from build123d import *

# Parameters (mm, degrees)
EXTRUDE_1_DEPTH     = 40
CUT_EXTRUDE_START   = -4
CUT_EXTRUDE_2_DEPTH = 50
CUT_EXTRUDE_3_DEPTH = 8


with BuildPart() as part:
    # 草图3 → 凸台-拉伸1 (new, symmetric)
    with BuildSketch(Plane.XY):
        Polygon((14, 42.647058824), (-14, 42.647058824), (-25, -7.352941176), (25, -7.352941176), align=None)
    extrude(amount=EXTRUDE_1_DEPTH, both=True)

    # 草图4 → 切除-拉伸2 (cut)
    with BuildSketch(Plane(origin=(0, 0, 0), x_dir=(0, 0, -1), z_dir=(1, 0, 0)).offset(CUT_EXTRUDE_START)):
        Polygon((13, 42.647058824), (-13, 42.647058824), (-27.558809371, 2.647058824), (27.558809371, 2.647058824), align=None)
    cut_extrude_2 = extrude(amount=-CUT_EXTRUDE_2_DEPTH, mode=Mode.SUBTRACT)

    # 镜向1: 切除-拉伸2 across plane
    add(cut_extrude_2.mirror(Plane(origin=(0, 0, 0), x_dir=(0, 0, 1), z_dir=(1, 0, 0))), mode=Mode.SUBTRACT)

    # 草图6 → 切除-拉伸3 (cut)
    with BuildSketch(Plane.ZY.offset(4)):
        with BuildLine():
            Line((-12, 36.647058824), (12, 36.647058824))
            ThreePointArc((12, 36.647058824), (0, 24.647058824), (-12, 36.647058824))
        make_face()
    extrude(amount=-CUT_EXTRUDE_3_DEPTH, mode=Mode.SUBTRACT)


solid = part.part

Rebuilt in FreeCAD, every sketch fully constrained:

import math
import FreeCAD as App
import Part
import Sketcher

V = App.Vector
Q = App.Units.Quantity


def add_polygon(sketch, points):
    """Adds a closed chain of lines whose ends are joined by coincident constraints."""
    first, n = sketch.GeometryCount, len(points)
    for a, b in zip(points, points[1:] + points[:1]):
        sketch.addGeometry(Part.LineSegment(App.Vector(*a, 0), App.Vector(*b, 0)), False)
    for i in range(n):
        sketch.addConstraint(Sketcher.Constraint("Coincident", first + i, 2, first + (i + 1) % n, 1))

doc = App.newDocument("Part")
body = doc.addObject("PartDesign::Body", "Body")

# Sketch on XY plane
sketch1 = body.newObject("Sketcher::SketchObject", "Sketch")
sketch1.AttachmentSupport = (doc.getObject("XY_Plane"), [""])
sketch1.MapMode = "FlatFace"
add_polygon(sketch1, [(14, 42.647059), (-14, 42.647059), (-25, -7.352941), (25, -7.352941)])  # lines 0-3
sketch1.addConstraint([
    Sketcher.Constraint("Horizontal", 0),
    Sketcher.Constraint("Horizontal", 2),
    Sketcher.Constraint("Equal", 1, 3),
    Sketcher.Constraint("DistanceX", 0, 2, 0, 1, 28.0),
    Sketcher.Constraint("DistanceX", 2, 1, 2, 2, 50.0),
    Sketcher.Constraint("DistanceX", 0, 2, -1, 1, 14.0),
    Sketcher.Constraint("DistanceY", 1, 2, 0, 2, 50.0),
    Sketcher.Constraint("DistanceY", -1, 1, 0, 2, 42.647059),
])
pad1 = body.newObject("PartDesign::Pad", "Pad")
pad1.Profile = sketch1
pad1.Length = 80
pad1.Midplane = True

# Sketch on YZ plane
sketch2 = body.newObject("Sketcher::SketchObject", "Sketch001")
sketch2.AttachmentSupport = (doc.getObject("YZ_Plane"), [""])
sketch2.MapMode = "FlatFace"
sketch2.AttachmentOffset = App.Placement(V(0, 0, -4), App.Rotation())
add_polygon(sketch2, [(42.647059, -13), (42.647059, 13), (2.647059, 27.558809), (2.647059, -27.558809)])  # lines 0-3
sketch2.addConstraint([
    Sketcher.Constraint("Vertical", 0),
    Sketcher.Constraint("Vertical", 2),
    Sketcher.Constraint("Equal", 1, 3),
    Sketcher.Constraint("DistanceY", 0, 1, 0, 2, 26.0),
    Sketcher.Constraint("Angle", 1, Q("160 deg")),
    Sketcher.Constraint("DistanceY", -1, 1, 0, 2, 13.0),
    Sketcher.Constraint("DistanceX", 1, 2, 0, 2, 40.0),
    Sketcher.Constraint("DistanceX", -1, 1, 0, 2, 42.647059),
])
pocket1 = body.newObject("PartDesign::Pocket", "Pocket")
pocket1.Profile = sketch2
pocket1.Length = 50
doc.recompute()

mirrored = body.newObject("PartDesign::Mirrored", "Mirrored")
mirrored.Originals = [pocket1]
mirrored.MirrorPlane = (doc.getObject("YZ_Plane"), [""])
body.Tip = mirrored

# Sketch on YZ plane
sketch3 = body.newObject("Sketcher::SketchObject", "Sketch002")
sketch3.AttachmentSupport = (doc.getObject("YZ_Plane"), [""])
sketch3.MapMode = "FlatFace"
sketch3.AttachmentOffset = App.Placement(V(0, 0, -4), App.Rotation())
sketch3.addGeometry([
    Part.LineSegment(V(36.647059, 12, 0), V(36.647059, -12, 0)),
    Part.ArcOfCircle(Part.Circle(V(36.647059, 0, 0), V(0, 0, 1), 12), math.radians(90), math.radians(270)),
], False)
sketch3.addConstraint([
    Sketcher.Constraint("Coincident", 0, 1, 1, 1),
    Sketcher.Constraint("Coincident", 1, 2, 0, 2),
    Sketcher.Constraint("Vertical", 0),
    Sketcher.Constraint("PointOnObject", 1, 3, -1),
    Sketcher.Constraint("Vertical", 1, 3, 0, 1),
    Sketcher.Constraint("Radius", 1, 12.0),
    Sketcher.Constraint("DistanceX", -1, 1, 1, 3, 36.647059),
])
pocket2 = body.newObject("PartDesign::Pocket", "Pocket001")
pocket2.Profile = sketch3
pocket2.Length = 8
pocket2.Reversed = True

doc.recompute()
